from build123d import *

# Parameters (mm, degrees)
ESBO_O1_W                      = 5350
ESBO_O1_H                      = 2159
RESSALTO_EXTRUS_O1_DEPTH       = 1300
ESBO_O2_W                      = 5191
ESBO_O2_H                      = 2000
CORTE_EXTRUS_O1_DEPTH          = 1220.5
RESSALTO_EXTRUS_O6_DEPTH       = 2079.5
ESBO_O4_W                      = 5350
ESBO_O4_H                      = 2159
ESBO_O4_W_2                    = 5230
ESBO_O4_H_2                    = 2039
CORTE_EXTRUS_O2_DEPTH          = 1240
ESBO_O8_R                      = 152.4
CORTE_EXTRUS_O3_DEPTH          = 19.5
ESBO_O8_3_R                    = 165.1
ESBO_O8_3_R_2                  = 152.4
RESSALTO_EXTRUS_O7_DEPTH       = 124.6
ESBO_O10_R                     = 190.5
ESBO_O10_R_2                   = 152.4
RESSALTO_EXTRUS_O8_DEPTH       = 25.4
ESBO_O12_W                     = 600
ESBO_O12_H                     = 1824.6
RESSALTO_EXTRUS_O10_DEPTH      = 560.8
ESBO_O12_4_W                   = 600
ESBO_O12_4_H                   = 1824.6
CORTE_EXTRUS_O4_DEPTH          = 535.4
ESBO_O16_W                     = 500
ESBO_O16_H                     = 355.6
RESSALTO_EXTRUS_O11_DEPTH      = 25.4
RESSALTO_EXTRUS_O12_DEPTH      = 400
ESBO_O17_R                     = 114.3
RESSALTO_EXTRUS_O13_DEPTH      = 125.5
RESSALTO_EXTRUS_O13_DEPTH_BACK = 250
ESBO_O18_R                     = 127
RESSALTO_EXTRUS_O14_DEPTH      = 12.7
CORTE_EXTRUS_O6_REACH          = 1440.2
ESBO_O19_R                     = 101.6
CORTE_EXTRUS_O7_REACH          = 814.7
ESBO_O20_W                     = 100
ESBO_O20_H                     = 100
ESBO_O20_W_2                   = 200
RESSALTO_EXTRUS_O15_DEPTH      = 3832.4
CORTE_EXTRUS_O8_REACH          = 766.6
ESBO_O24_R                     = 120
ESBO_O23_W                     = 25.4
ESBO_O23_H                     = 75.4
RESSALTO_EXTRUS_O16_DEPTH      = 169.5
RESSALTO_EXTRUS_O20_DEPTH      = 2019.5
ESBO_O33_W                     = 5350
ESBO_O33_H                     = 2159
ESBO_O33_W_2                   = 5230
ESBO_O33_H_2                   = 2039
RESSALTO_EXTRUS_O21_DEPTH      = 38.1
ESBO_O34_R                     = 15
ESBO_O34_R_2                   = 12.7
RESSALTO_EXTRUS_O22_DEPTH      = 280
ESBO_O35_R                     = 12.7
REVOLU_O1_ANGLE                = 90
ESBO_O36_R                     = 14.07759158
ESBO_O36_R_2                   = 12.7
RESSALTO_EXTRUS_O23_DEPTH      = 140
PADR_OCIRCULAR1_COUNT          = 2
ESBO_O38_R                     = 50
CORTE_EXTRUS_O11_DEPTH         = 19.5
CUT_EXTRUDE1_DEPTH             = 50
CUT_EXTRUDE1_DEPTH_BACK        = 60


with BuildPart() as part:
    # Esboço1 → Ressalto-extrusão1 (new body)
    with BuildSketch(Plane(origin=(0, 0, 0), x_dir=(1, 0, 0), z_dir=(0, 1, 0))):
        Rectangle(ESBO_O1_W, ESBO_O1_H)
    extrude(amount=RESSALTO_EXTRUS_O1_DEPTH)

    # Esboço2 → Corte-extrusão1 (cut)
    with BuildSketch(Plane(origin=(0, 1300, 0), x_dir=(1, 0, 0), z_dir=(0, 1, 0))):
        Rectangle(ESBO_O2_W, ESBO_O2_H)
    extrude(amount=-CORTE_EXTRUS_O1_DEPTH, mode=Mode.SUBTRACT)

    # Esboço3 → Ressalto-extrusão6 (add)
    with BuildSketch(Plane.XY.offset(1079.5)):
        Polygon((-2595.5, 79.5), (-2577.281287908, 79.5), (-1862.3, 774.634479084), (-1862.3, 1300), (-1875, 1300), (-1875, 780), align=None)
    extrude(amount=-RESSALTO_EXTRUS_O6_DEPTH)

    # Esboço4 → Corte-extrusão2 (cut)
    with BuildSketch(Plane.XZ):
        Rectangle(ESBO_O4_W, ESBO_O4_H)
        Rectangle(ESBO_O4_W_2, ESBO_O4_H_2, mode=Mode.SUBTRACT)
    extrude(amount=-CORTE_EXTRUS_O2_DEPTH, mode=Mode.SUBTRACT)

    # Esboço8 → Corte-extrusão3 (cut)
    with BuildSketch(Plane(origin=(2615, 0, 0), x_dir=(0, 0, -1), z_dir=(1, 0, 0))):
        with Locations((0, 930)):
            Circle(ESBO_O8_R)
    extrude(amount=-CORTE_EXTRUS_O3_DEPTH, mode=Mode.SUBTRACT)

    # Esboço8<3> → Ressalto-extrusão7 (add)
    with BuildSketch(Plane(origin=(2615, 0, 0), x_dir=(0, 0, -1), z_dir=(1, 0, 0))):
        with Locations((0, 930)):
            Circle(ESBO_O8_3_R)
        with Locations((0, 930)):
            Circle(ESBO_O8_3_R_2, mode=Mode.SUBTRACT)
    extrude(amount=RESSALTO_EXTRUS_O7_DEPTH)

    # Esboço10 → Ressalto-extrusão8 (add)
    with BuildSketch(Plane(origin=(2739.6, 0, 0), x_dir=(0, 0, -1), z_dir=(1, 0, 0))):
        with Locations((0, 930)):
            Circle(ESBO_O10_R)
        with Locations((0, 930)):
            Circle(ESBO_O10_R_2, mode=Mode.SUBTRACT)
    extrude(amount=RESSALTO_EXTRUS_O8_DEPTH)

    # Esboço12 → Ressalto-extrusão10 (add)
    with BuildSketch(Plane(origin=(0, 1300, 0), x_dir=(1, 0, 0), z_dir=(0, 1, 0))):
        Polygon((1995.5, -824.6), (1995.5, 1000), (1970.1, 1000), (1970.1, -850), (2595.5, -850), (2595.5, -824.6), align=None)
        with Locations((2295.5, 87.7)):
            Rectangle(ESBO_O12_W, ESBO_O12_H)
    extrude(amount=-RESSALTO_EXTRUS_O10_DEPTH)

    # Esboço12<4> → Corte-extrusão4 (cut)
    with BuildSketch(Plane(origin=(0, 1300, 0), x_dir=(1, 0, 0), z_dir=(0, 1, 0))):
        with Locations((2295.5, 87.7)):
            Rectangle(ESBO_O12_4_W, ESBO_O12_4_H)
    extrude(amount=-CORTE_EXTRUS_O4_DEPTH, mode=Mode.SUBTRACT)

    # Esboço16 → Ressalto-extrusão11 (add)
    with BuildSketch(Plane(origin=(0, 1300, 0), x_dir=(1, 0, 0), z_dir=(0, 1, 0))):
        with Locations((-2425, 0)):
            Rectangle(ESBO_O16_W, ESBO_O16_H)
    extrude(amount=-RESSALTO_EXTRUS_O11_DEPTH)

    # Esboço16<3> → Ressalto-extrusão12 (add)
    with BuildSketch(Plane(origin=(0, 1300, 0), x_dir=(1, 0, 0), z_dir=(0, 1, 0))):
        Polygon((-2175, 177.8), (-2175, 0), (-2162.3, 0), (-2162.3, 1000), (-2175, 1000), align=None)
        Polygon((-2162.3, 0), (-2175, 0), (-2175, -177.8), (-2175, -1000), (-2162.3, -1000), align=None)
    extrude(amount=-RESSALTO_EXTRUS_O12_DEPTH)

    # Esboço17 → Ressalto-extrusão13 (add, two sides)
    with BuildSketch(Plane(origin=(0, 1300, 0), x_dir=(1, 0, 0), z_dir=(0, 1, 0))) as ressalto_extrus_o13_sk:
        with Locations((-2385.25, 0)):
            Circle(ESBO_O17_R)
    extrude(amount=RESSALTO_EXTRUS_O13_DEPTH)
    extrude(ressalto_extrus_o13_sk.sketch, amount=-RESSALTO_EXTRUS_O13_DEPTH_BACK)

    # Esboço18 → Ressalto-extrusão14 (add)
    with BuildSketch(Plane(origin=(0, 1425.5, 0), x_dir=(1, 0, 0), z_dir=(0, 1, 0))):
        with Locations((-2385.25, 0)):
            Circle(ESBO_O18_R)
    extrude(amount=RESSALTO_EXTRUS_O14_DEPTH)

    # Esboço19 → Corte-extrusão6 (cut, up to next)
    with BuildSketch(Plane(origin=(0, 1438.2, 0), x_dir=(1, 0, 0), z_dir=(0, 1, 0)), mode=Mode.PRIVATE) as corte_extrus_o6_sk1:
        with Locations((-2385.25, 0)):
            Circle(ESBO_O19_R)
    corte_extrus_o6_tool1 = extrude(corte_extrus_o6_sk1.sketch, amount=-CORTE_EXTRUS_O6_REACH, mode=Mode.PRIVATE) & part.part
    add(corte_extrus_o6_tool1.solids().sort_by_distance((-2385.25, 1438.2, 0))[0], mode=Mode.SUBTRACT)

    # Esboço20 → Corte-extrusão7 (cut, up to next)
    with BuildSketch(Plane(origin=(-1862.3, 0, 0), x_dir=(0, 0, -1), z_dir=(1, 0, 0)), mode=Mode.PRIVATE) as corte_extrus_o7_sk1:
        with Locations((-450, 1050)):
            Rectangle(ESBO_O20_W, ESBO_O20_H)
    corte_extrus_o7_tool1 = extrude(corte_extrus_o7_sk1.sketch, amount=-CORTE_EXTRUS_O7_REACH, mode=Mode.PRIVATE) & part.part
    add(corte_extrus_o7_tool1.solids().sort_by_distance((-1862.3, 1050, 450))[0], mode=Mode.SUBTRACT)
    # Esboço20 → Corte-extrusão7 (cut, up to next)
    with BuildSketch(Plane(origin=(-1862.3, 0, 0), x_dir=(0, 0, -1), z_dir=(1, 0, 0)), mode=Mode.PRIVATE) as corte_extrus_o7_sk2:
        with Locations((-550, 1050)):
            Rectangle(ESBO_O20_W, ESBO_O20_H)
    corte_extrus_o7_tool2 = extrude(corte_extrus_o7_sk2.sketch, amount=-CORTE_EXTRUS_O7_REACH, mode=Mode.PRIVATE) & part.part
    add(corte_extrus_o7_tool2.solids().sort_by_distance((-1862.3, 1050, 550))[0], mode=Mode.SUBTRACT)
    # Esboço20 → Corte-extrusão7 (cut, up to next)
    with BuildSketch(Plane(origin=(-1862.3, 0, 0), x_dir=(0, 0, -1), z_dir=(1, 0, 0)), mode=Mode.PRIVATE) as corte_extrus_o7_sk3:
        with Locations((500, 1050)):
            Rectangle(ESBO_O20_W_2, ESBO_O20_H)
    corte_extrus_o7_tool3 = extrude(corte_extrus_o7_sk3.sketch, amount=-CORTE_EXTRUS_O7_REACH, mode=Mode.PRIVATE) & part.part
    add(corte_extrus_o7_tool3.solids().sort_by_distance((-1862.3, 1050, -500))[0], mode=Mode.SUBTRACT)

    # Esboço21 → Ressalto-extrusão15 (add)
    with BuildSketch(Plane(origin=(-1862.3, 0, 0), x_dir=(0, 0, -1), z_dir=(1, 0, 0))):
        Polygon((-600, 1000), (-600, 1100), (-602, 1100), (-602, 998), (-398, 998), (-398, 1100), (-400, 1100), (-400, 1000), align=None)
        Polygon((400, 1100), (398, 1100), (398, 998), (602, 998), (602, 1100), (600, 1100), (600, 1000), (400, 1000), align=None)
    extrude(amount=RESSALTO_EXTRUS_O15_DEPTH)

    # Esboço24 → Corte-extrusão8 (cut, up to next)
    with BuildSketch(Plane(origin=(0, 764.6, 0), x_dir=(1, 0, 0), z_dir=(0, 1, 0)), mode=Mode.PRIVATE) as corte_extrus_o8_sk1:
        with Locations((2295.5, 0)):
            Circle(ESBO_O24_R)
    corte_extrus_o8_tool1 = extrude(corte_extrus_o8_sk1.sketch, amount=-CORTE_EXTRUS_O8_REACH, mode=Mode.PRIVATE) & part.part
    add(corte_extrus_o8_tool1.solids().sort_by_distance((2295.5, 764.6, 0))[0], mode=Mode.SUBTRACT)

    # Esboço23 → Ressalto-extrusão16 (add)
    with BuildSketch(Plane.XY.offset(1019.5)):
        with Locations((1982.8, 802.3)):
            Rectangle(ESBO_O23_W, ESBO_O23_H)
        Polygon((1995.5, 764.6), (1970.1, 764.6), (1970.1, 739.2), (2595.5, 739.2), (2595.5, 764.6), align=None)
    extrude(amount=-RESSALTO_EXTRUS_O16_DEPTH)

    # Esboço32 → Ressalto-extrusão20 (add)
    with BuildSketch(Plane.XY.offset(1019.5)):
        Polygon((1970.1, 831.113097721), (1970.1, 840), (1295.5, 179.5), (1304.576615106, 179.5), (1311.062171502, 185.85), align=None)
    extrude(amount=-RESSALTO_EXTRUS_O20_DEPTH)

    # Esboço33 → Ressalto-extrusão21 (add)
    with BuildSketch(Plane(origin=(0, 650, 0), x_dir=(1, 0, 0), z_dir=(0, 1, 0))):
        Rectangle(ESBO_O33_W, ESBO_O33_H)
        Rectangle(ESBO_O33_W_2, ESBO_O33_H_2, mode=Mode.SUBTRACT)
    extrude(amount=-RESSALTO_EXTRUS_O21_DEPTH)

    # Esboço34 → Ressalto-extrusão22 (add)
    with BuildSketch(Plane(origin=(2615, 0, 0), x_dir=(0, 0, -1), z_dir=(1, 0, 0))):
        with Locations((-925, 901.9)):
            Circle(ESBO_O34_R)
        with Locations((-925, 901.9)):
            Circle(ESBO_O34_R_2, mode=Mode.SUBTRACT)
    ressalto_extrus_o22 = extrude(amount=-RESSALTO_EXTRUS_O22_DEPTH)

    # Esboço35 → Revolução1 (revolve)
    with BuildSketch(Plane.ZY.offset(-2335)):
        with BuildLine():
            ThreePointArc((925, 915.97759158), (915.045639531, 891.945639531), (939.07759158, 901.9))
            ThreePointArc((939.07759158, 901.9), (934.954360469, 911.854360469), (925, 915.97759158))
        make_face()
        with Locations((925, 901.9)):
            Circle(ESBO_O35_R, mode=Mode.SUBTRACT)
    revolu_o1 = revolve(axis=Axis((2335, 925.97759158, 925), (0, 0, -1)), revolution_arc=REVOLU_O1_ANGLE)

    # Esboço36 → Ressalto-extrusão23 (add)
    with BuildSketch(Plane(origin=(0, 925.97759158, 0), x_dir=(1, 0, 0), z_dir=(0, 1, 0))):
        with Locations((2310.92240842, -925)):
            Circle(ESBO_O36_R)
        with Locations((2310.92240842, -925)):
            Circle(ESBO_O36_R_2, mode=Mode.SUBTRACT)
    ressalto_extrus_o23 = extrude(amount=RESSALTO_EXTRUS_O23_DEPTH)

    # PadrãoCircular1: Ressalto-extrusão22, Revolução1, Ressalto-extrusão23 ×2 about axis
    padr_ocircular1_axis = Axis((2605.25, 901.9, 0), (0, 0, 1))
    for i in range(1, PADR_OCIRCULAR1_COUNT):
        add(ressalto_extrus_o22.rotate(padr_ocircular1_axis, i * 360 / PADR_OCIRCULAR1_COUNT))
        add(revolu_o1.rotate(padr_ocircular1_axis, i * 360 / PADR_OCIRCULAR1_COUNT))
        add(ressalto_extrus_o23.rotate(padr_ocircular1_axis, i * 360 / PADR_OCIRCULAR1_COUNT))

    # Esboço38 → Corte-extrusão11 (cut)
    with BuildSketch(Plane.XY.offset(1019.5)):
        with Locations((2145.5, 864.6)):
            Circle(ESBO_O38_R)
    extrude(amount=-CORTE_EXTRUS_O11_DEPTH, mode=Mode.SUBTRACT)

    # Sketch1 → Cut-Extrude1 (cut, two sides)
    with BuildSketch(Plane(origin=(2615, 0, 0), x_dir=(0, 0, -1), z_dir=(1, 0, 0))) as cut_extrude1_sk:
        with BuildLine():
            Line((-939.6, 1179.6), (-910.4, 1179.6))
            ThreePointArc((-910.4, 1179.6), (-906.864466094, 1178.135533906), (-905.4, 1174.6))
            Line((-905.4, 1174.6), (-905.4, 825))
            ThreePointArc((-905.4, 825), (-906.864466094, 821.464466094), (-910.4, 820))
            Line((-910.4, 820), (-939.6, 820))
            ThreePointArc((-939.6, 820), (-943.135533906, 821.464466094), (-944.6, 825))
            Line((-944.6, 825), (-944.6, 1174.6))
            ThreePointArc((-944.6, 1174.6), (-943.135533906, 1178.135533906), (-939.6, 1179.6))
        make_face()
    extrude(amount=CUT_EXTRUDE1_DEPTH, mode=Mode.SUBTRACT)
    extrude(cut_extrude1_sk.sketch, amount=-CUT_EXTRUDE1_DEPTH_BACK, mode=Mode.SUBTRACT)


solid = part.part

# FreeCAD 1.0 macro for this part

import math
import FreeCAD as App
import Part
import Sketcher

V = App.Vector

doc = App.newDocument("Part")
body = doc.addObject("PartDesign::Body", "Body")
body.AllowCompound = True

sketch1 = body.newObject("Sketcher::SketchObject", "Sketch")
sketch1.AttachmentSupport = (doc.getObject("XZ_Plane"), [""])
sketch1.MapMode = "FlatFace"
sketch1.addGeometry([
    Part.LineSegment(V(-2675, -1079.5, 0), V(-2675, 1079.5, 0)),
    Part.LineSegment(V(-2675, 1079.5, 0), V(2675, 1079.5, 0)),
    Part.LineSegment(V(2675, 1079.5, 0), V(2675, -1079.5, 0)),
    Part.LineSegment(V(2675, -1079.5, 0), V(-2675, -1079.5, 0)),
], False)
sketch1.addConstraint([
    Sketcher.Constraint("Coincident", 0, 2, 1, 1),
    Sketcher.Constraint("Coincident", 1, 2, 2, 1),
    Sketcher.Constraint("Coincident", 2, 2, 3, 1),
    Sketcher.Constraint("Coincident", 3, 2, 0, 1),
    Sketcher.Constraint("Vertical", 0),
    Sketcher.Constraint("Horizontal", 1),
    Sketcher.Constraint("Vertical", 2),
    Sketcher.Constraint("Horizontal", 3),
    Sketcher.Constraint("Symmetric", 0, 2, 2, 2, -1, 1),
    Sketcher.Constraint("DistanceX", 1, 1, 1, 2, 5350.0),
    Sketcher.Constraint("DistanceY", 0, 1, 0, 2, 2159.0),
])
pad1 = body.newObject("PartDesign::Pad", "Pad")
pad1.Profile = sketch1
pad1.Length = 1300
pad1.Reversed = True

sketch2 = body.newObject("Sketcher::SketchObject", "Sketch001")
sketch2.AttachmentSupport = (doc.getObject("XZ_Plane"), [""])
sketch2.MapMode = "FlatFace"
sketch2.AttachmentOffset = App.Placement(V(0, 0, -1300), App.Rotation())
sketch2.addGeometry([
    Part.LineSegment(V(-2595.5, -1000, 0), V(-2595.5, 1000, 0)),
    Part.LineSegment(V(-2595.5, 1000, 0), V(2595.5, 1000, 0)),
    Part.LineSegment(V(2595.5, 1000, 0), V(2595.5, -1000, 0)),
    Part.LineSegment(V(2595.5, -1000, 0), V(-2595.5, -1000, 0)),
], False)
sketch2.addConstraint([
    Sketcher.Constraint("Coincident", 0, 2, 1, 1),
    Sketcher.Constraint("Coincident", 1, 2, 2, 1),
    Sketcher.Constraint("Coincident", 2, 2, 3, 1),
    Sketcher.Constraint("Coincident", 3, 2, 0, 1),
    Sketcher.Constraint("Vertical", 0),
    Sketcher.Constraint("Horizontal", 1),
    Sketcher.Constraint("Vertical", 2),
    Sketcher.Constraint("Horizontal", 3),
    Sketcher.Constraint("Symmetric", 0, 2, 2, 2, -1, 1),
    Sketcher.Constraint("DistanceX", 1, 1, 1, 2, 5191.0),
    Sketcher.Constraint("DistanceY", 0, 1, 0, 2, 2000.0),
])
pocket1 = body.newObject("PartDesign::Pocket", "Pocket")
pocket1.Profile = sketch2
pocket1.Length = 1220.5
pocket1.Reversed = True

sketch3 = body.newObject("Sketcher::SketchObject", "Sketch002")
sketch3.AttachmentSupport = (doc.getObject("XY_Plane"), [""])
sketch3.MapMode = "FlatFace"
sketch3.AttachmentOffset = App.Placement(V(0, 0, 1079.5), App.Rotation())
sketch3.addGeometry([
    Part.LineSegment(V(-2595.5, 79.5, 0), V(-2577.281288, 79.5, 0)),
    Part.LineSegment(V(-2577.281288, 79.5, 0), V(-1862.3, 774.634479, 0)),
    Part.LineSegment(V(-1862.3, 774.634479, 0), V(-1862.3, 1300, 0)),
    Part.LineSegment(V(-1862.3, 1300, 0), V(-1875, 1300, 0)),
    Part.LineSegment(V(-1875, 1300, 0), V(-1875, 780, 0)),
    Part.LineSegment(V(-1875, 780, 0), V(-2595.5, 79.5, 0)),
], False)
sketch3.addConstraint([
    Sketcher.Constraint("Coincident", 0, 2, 1, 1),
    Sketcher.Constraint("Coincident", 1, 2, 2, 1),
    Sketcher.Constraint("Coincident", 2, 2, 3, 1),
    Sketcher.Constraint("Coincident", 3, 2, 4, 1),
    Sketcher.Constraint("Coincident", 4, 2, 5, 1),
    Sketcher.Constraint("Coincident", 5, 2, 0, 1),
    Sketcher.Constraint("Horizontal", 0),
    Sketcher.Constraint("Vertical", 2),
    Sketcher.Constraint("Horizontal", 3),
    Sketcher.Constraint("Vertical", 4),
    Sketcher.Constraint("Parallel", 1, 5),
    Sketcher.Constraint("DistanceY", 4, 2, 4, 1, 520.0),
    Sketcher.Constraint("DistanceX", 3, 2, 3, 1, 12.7),
    Sketcher.Constraint("DistanceY", -1, 1, 2, 2, 1300.0),
    Sketcher.Constraint("DistanceX", 3, 2, -1, 1, 1875.0),
    Sketcher.Constraint("DistanceY", -1, 1, 0, 2, 79.5),
    Sketcher.Constraint("DistanceX", 5, 2, -1, 1, 2595.5),
    Sketcher.Constraint("DistanceY", 2, 1, 2, 2, 525.365521),
])
pad2 = body.newObject("PartDesign::Pad", "Pad001")
pad2.Profile = sketch3
pad2.Length = 2079.5
pad2.Reversed = True

sketch4 = body.newObject("Sketcher::SketchObject", "Sketch003")
sketch4.AttachmentSupport = (doc.getObject("XZ_Plane"), [""])
sketch4.MapMode = "FlatFace"
sketch4.addGeometry([
    Part.LineSegment(V(-2675, 1079.5, 0), V(-2675, -1079.5, 0)),
    Part.LineSegment(V(-2675, -1079.5, 0), V(2675, -1079.5, 0)),
    Part.LineSegment(V(2675, -1079.5, 0), V(2675, 1079.5, 0)),
    Part.LineSegment(V(2675, 1079.5, 0), V(-2675, 1079.5, 0)),
    Part.LineSegment(V(2615, -1019.5, 0), V(-2615, -1019.5, 0)),
    Part.LineSegment(V(-2615, -1019.5, 0), V(-2615, 1019.5, 0)),
    Part.LineSegment(V(-2615, 1019.5, 0), V(2615, 1019.5, 0)),
    Part.LineSegment(V(2615, 1019.5, 0), V(2615, -1019.5, 0)),
], False)
sketch4.addConstraint([
    Sketcher.Constraint("Coincident", 0, 2, 1, 1),
    Sketcher.Constraint("Coincident", 1, 2, 2, 1),
    Sketcher.Constraint("Coincident", 2, 2, 3, 1),
    Sketcher.Constraint("Coincident", 3, 2, 0, 1),
    Sketcher.Constraint("Coincident", 4, 2, 5, 1),
    Sketcher.Constraint("Coincident", 5, 2, 6, 1),
    Sketcher.Constraint("Coincident", 6, 2, 7, 1),
    Sketcher.Constraint("Coincident", 7, 2, 4, 1),
    Sketcher.Constraint("Vertical", 0),
    Sketcher.Constraint("Horizontal", 1),
    Sketcher.Constraint("Vertical", 2),
    Sketcher.Constraint("Horizontal", 3),
    Sketcher.Constraint("Horizontal", 4),
    Sketcher.Constraint("Vertical", 5),
    Sketcher.Constraint("Horizontal", 6),
    Sketcher.Constraint("Vertical", 7),
    Sketcher.Constraint("Symmetric", 0, 2, 2, 2, -1, 1),
    Sketcher.Constraint("Symmetric", 4, 2, 6, 2, -1, 1),
    Sketcher.Constraint("DistanceX", 1, 1, 1, 2, 5350.0),
    Sketcher.Constraint("DistanceX", 4, 2, 4, 1, 5230.0),
    Sketcher.Constraint("DistanceY", 0, 2, 0, 1, 2159.0),
    Sketcher.Constraint("DistanceY", 5, 1, 5, 2, 2039.0),
])
pocket2 = body.newObject("PartDesign::Pocket", "Pocket001")
pocket2.Profile = sketch4
pocket2.Length = 1240

sketch5 = body.newObject("Sketcher::SketchObject", "Sketch004")
sketch5.AttachmentSupport = (doc.getObject("YZ_Plane"), [""])
sketch5.MapMode = "FlatFace"
sketch5.AttachmentOffset = App.Placement(V(0, 0, 2615), App.Rotation())
sketch5.addGeometry(Part.Circle(V(930, 0, 0), V(0, 0, 1), 152.4), False)
sketch5.addConstraint([
    Sketcher.Constraint("PointOnObject", 0, 3, -1),
    Sketcher.Constraint("Diameter", 0, 304.8),
    Sketcher.Constraint("DistanceX", -1, 1, 0, 3, 930.0),
])
pocket3 = body.newObject("PartDesign::Pocket", "Pocket002")
pocket3.Profile = sketch5
pocket3.Length = 19.5

sketch6 = body.newObject("Sketcher::SketchObject", "Sketch005")
sketch6.AttachmentSupport = (doc.getObject("YZ_Plane"), [""])
sketch6.MapMode = "FlatFace"
sketch6.AttachmentOffset = App.Placement(V(0, 0, 2615), App.Rotation())
sketch6.addGeometry([
    Part.Circle(V(930, 0, 0), V(0, 0, 1), 165.1),
    Part.Circle(V(930, 0, 0), V(0, 0, 1), 152.4),
], False)
sketch6.addConstraint([
    Sketcher.Constraint("Coincident", 1, 3, 0, 3),
    Sketcher.Constraint("PointOnObject", 0, 3, -1),
    Sketcher.Constraint("Diameter", 0, 330.2),
    Sketcher.Constraint("Diameter", 1, 304.8),
    Sketcher.Constraint("DistanceX", -1, 1, 0, 3, 930.0),
])
pad3 = body.newObject("PartDesign::Pad", "Pad002")
pad3.Profile = sketch6
pad3.Length = 124.6

sketch7 = body.newObject("Sketcher::SketchObject", "Sketch006")
sketch7.AttachmentSupport = (doc.getObject("YZ_Plane"), [""])
sketch7.MapMode = "FlatFace"
sketch7.AttachmentOffset = App.Placement(V(0, 0, 2739.6), App.Rotation())
sketch7.addGeometry([
    Part.Circle(V(930, 0, 0), V(0, 0, 1), 190.5),
    Part.Circle(V(930, 0, 0), V(0, 0, 1), 152.4),
], False)
sketch7.addConstraint([
    Sketcher.Constraint("Coincident", 1, 3, 0, 3),
    Sketcher.Constraint("PointOnObject", 0, 3, -1),
    Sketcher.Constraint("Diameter", 0, 381.0),
    Sketcher.Constraint("Diameter", 1, 304.8),
    Sketcher.Constraint("DistanceX", -1, 1, 0, 3, 930.0),
])
pad4 = body.newObject("PartDesign::Pad", "Pad003")
pad4.Profile = sketch7
pad4.Length = 25.4

sketch8 = body.newObject("Sketcher::SketchObject", "Sketch007")
sketch8.AttachmentSupport = (doc.getObject("XZ_Plane"), [""])
sketch8.MapMode = "FlatFace"
sketch8.AttachmentOffset = App.Placement(V(0, 0, -1300), App.Rotation())
sketch8.addGeometry([
    Part.LineSegment(V(1970.1, -1000, 0), V(1970.1, 850, 0)),
    Part.LineSegment(V(1970.1, 850, 0), V(2595.5, 850, 0)),
    Part.LineSegment(V(2595.5, 850, 0), V(2595.5, -1000, 0)),
    Part.LineSegment(V(2595.5, -1000, 0), V(1970.1, -1000, 0)),
], False)
sketch8.addConstraint([
    Sketcher.Constraint("Coincident", 0, 2, 1, 1),
    Sketcher.Constraint("Coincident", 1, 2, 2, 1),
    Sketcher.Constraint("Coincident", 2, 2, 3, 1),
    Sketcher.Constraint("Coincident", 3, 2, 0, 1),
    Sketcher.Constraint("Vertical", 0),
    Sketcher.Constraint("Horizontal", 1),
    Sketcher.Constraint("Vertical", 2),
    Sketcher.Constraint("Horizontal", 3),
    Sketcher.Constraint("DistanceY", 0, 1, 0, 2, 1850.0),
    Sketcher.Constraint("DistanceX", 1, 1, 1, 2, 625.4),
    Sketcher.Constraint("DistanceY", -1, 1, 0, 2, 850.0),
    Sketcher.Constraint("DistanceX", -1, 1, 0, 2, 1970.1),
])
pad5 = body.newObject("PartDesign::Pad", "Pad004")
pad5.Profile = sketch8
pad5.Length = 560.8

sketch9 = body.newObject("Sketcher::SketchObject", "Sketch008")
sketch9.AttachmentSupport = (doc.getObject("XZ_Plane"), [""])
sketch9.MapMode = "FlatFace"
sketch9.AttachmentOffset = App.Placement(V(0, 0, -1300), App.Rotation())
sketch9.addGeometry([
    Part.LineSegment(V(1995.5, -1000, 0), V(1995.5, 824.6, 0)),
    Part.LineSegment(V(1995.5, 824.6, 0), V(2595.5, 824.6, 0)),
    Part.LineSegment(V(2595.5, 824.6, 0), V(2595.5, -1000, 0)),
    Part.LineSegment(V(2595.5, -1000, 0), V(1995.5, -1000, 0)),
], False)
sketch9.addConstraint([
    Sketcher.Constraint("Coincident", 0, 2, 1, 1),
    Sketcher.Constraint("Coincident", 1, 2, 2, 1),
    Sketcher.Constraint("Coincident", 2, 2, 3, 1),
    Sketcher.Constraint("Coincident", 3, 2, 0, 1),
    Sketcher.Constraint("Vertical", 0),
    Sketcher.Constraint("Horizontal", 1),
    Sketcher.Constraint("Vertical", 2),
    Sketcher.Constraint("Horizontal", 3),
    Sketcher.Constraint("DistanceX", 1, 1, 1, 2, 600.0),
    Sketcher.Constraint("DistanceY", 0, 1, 0, 2, 1824.6),
    Sketcher.Constraint("DistanceY", 2, 2, -1, 1, 1000.0),
    Sketcher.Constraint("DistanceX", -1, 1, 0, 2, 1995.5),
])
pocket4 = body.newObject("PartDesign::Pocket", "Pocket003")
pocket4.Profile = sketch9
pocket4.Length = 535.4
pocket4.Reversed = True

sketch10 = body.newObject("Sketcher::SketchObject", "Sketch009")
sketch10.AttachmentSupport = (doc.getObject("XZ_Plane"), [""])
sketch10.MapMode = "FlatFace"
sketch10.AttachmentOffset = App.Placement(V(0, 0, -1300), App.Rotation())
sketch10.addGeometry([
    Part.LineSegment(V(-2675, -177.8, 0), V(-2675, 177.8, 0)),
    Part.LineSegment(V(-2675, 177.8, 0), V(-2175, 177.8, 0)),
    Part.LineSegment(V(-2175, 177.8, 0), V(-2175, -177.8, 0)),
    Part.LineSegment(V(-2175, -177.8, 0), V(-2675, -177.8, 0)),
], False)
sketch10.addConstraint([
    Sketcher.Constraint("Coincident", 0, 2, 1, 1),
    Sketcher.Constraint("Coincident", 1, 2, 2, 1),
    Sketcher.Constraint("Coincident", 2, 2, 3, 1),
    Sketcher.Constraint("Coincident", 3, 2, 0, 1),
    Sketcher.Constraint("Vertical", 0),
    Sketcher.Constraint("Horizontal", 1),
    Sketcher.Constraint("Vertical", 2),
    Sketcher.Constraint("Horizontal", 3),
    Sketcher.Constraint("DistanceX", 1, 1, 1, 2, 500.0),
    Sketcher.Constraint("DistanceY", 0, 1, 0, 2, 355.6),
    Sketcher.Constraint("DistanceX", 0, 2, -1, 1, 2675.0),
    Sketcher.Constraint("DistanceY", -1, 1, 0, 2, 177.8),
])
pad6 = body.newObject("PartDesign::Pad", "Pad005")
pad6.Profile = sketch10
pad6.Length = 25.4

sketch11 = body.newObject("Sketcher::SketchObject", "Sketch010")
sketch11.AttachmentSupport = (doc.getObject("XZ_Plane"), [""])
sketch11.MapMode = "FlatFace"
sketch11.AttachmentOffset = App.Placement(V(0, 0, -1300), App.Rotation())
sketch11.addGeometry([
    Part.LineSegment(V(-2162.3, -1000, 0), V(-2175, -1000, 0)),
    Part.LineSegment(V(-2175, -1000, 0), V(-2175, 1000, 0)),
    Part.LineSegment(V(-2175, 1000, 0), V(-2162.3, 1000, 0)),
    Part.LineSegment(V(-2162.3, 1000, 0), V(-2162.3, -1000, 0)),
], False)
sketch11.addConstraint([
    Sketcher.Constraint("Coincident", 0, 2, 1, 1),
    Sketcher.Constraint("Coincident", 1, 2, 2, 1),
    Sketcher.Constraint("Coincident", 2, 2, 3, 1),
    Sketcher.Constraint("Coincident", 3, 2, 0, 1),
    Sketcher.Constraint("Horizontal", 0),
    Sketcher.Constraint("Vertical", 1),
    Sketcher.Constraint("Horizontal", 2),
    Sketcher.Constraint("Vertical", 3),
    Sketcher.Constraint("DistanceY", 1, 1, 1, 2, 2000.0),
    Sketcher.Constraint("DistanceX", 0, 2, 0, 1, 12.7),
    Sketcher.Constraint("DistanceX", 0, 2, -1, 1, 2175.0),
    Sketcher.Constraint("DistanceY", 0, 2, -1, 1, 1000.0),
])
pad7 = body.newObject("PartDesign::Pad", "Pad006")
pad7.Profile = sketch11
pad7.Length = 400

sketch12 = body.newObject("Sketcher::SketchObject", "Sketch011")
sketch12.AttachmentSupport = (doc.getObject("XZ_Plane"), [""])
sketch12.MapMode = "FlatFace"
sketch12.AttachmentOffset = App.Placement(V(0, 0, -1300), App.Rotation())
sketch12.addGeometry(Part.Circle(V(-2385.25, 0, 0), V(0, 0, 1), 114.3), False)
sketch12.addConstraint([
    Sketcher.Constraint("PointOnObject", 0, 3, -1),
    Sketcher.Constraint("Diameter", 0, 228.6),
    Sketcher.Constraint("DistanceX", 0, 3, -1, 1, 2385.25),
])
pad8 = body.newObject("PartDesign::Pad", "Pad007")
pad8.Profile = sketch12
pad8.Type = "TwoLengths"
pad8.Length = 125.5
pad8.Length2 = 250
pad8.Reversed = True

sketch13 = body.newObject("Sketcher::SketchObject", "Sketch012")
sketch13.AttachmentSupport = (doc.getObject("XZ_Plane"), [""])
sketch13.MapMode = "FlatFace"
sketch13.AttachmentOffset = App.Placement(V(0, 0, -1425.5), App.Rotation())
sketch13.addGeometry(Part.Circle(V(-2385.25, 0, 0), V(0, 0, 1), 127), False)
sketch13.addConstraint([
    Sketcher.Constraint("PointOnObject", 0, 3, -1),
    Sketcher.Constraint("Diameter", 0, 254.0),
    Sketcher.Constraint("DistanceX", 0, 3, -1, 1, 2385.25),
])
pad9 = body.newObject("PartDesign::Pad", "Pad008")
pad9.Profile = sketch13
pad9.Length = 12.7
pad9.Reversed = True

sketch14 = body.newObject("Sketcher::SketchObject", "Sketch013")
sketch14.AttachmentSupport = (doc.getObject("XZ_Plane"), [""])
sketch14.MapMode = "FlatFace"
sketch14.AttachmentOffset = App.Placement(V(0, 0, -1438.2), App.Rotation())
sketch14.addGeometry(Part.Circle(V(-2385.25, 0, 0), V(0, 0, 1), 101.6), False)
sketch14.addConstraint([
    Sketcher.Constraint("PointOnObject", 0, 3, -1),
    Sketcher.Constraint("Diameter", 0, 203.2),
    Sketcher.Constraint("DistanceX", 0, 3, -1, 1, 2385.25),
])
pocket5 = body.newObject("PartDesign::Pocket", "Pocket004")
pocket5.Profile = sketch14
pocket5.Type = "UpToFirst"
pocket5.Reversed = True

sketch15 = body.newObject("Sketcher::SketchObject", "Sketch014")
sketch15.AttachmentSupport = (doc.getObject("YZ_Plane"), [""])
sketch15.MapMode = "FlatFace"
sketch15.AttachmentOffset = App.Placement(V(0, 0, -1862.3), App.Rotation())
sketch15.addGeometry([
    Part.LineSegment(V(1100, 500, 0), V(1000, 500, 0)),
    Part.LineSegment(V(1000, 500, 0), V(1000, 400, 0)),
    Part.LineSegment(V(1000, 400, 0), V(1100, 400, 0)),
    Part.LineSegment(V(1100, 400, 0), V(1100, 500, 0)),
], False)
sketch15.addConstraint([
    Sketcher.Constraint("Coincident", 0, 2, 1, 1),
    Sketcher.Constraint("Coincident", 1, 2, 2, 1),
    Sketcher.Constraint("Coincident", 2, 2, 3, 1),
    Sketcher.Constraint("Coincident", 3, 2, 0, 1),
    Sketcher.Constraint("Horizontal", 0),
    Sketcher.Constraint("Vertical", 1),
    Sketcher.Constraint("Horizontal", 2),
    Sketcher.Constraint("Vertical", 3),
    Sketcher.Constraint("Equal", 2, 1),
    Sketcher.Constraint("DistanceX", 0, 2, 0, 1, 100.0),
    Sketcher.Constraint("DistanceX", -1, 1, 0, 2, 1000.0),
    Sketcher.Constraint("DistanceY", -1, 1, 0, 2, 500.0),
])
pocket6 = body.newObject("PartDesign::Pocket", "Pocket005")
pocket6.Profile = sketch15
pocket6.Type = "UpToFirst"

sketch16 = body.newObject("Sketcher::SketchObject", "Sketch015")
sketch16.AttachmentSupport = (doc.getObject("YZ_Plane"), [""])
sketch16.MapMode = "FlatFace"
sketch16.AttachmentOffset = App.Placement(V(0, 0, -1862.3), App.Rotation())
sketch16.addGeometry([
    Part.LineSegment(V(1100, 600, 0), V(1000, 600, 0)),
    Part.LineSegment(V(1000, 600, 0), V(1000, 500, 0)),
    Part.LineSegment(V(1000, 500, 0), V(1100, 500, 0)),
    Part.LineSegment(V(1100, 500, 0), V(1100, 600, 0)),
], False)
sketch16.addConstraint([
    Sketcher.Constraint("Coincident", 0, 2, 1, 1),
    Sketcher.Constraint("Coincident", 1, 2, 2, 1),
    Sketcher.Constraint("Coincident", 2, 2, 3, 1),
    Sketcher.Constraint("Coincident", 3, 2, 0, 1),
    Sketcher.Constraint("Horizontal", 0),
    Sketcher.Constraint("Vertical", 1),
    Sketcher.Constraint("Horizontal", 2),
    Sketcher.Constraint("Vertical", 3),
    Sketcher.Constraint("Equal", 2, 1),
    Sketcher.Constraint("DistanceX", 0, 2, 0, 1, 100.0),
    Sketcher.Constraint("DistanceX", -1, 1, 0, 2, 1000.0),
    Sketcher.Constraint("DistanceY", -1, 1, 0, 2, 600.0),
])
pocket7 = body.newObject("PartDesign::Pocket", "Pocket006")
pocket7.Profile = sketch16
pocket7.Type = "UpToFirst"

sketch17 = body.newObject("Sketcher::SketchObject", "Sketch016")
sketch17.AttachmentSupport = (doc.getObject("YZ_Plane"), [""])
sketch17.MapMode = "FlatFace"
sketch17.AttachmentOffset = App.Placement(V(0, 0, -1862.3), App.Rotation())
sketch17.addGeometry([
    Part.LineSegment(V(1100, -400, 0), V(1000, -400, 0)),
    Part.LineSegment(V(1000, -400, 0), V(1000, -600, 0)),
    Part.LineSegment(V(1000, -600, 0), V(1100, -600, 0)),
    Part.LineSegment(V(1100, -600, 0), V(1100, -400, 0)),
], False)
sketch17.addConstraint([
    Sketcher.Constraint("Coincident", 0, 2, 1, 1),
    Sketcher.Constraint("Coincident", 1, 2, 2, 1),
    Sketcher.Constraint("Coincident", 2, 2, 3, 1),
    Sketcher.Constraint("Coincident", 3, 2, 0, 1),
    Sketcher.Constraint("Horizontal", 0),
    Sketcher.Constraint("Vertical", 1),
    Sketcher.Constraint("Horizontal", 2),
    Sketcher.Constraint("Vertical", 3),
    Sketcher.Constraint("DistanceX", 0, 2, 0, 1, 100.0),
    Sketcher.Constraint("DistanceY", 1, 2, 1, 1, 200.0),
    Sketcher.Constraint("DistanceX", -1, 1, 0, 2, 1000.0),
    Sketcher.Constraint("DistanceY", 0, 2, -1, 1, 400.0),
])
pocket8 = body.newObject("PartDesign::Pocket", "Pocket007")
pocket8.Profile = sketch17
pocket8.Type = "UpToFirst"

sketch18 = body.newObject("Sketcher::SketchObject", "Sketch017")
sketch18.AttachmentSupport = (doc.getObject("YZ_Plane"), [""])
sketch18.MapMode = "FlatFace"
sketch18.AttachmentOffset = App.Placement(V(0, 0, -1862.3), App.Rotation())
sketch18.addGeometry([
    Part.LineSegment(V(1000, 600, 0), V(1100, 600, 0)),
    Part.LineSegment(V(1100, 600, 0), V(1100, 602, 0)),
    Part.LineSegment(V(1100, 602, 0), V(998, 602, 0)),
    Part.LineSegment(V(998, 602, 0), V(998, 398, 0)),
    Part.LineSegment(V(998, 398, 0), V(1100, 398, 0)),
    Part.LineSegment(V(1100, 398, 0), V(1100, 400, 0)),
    Part.LineSegment(V(1100, 400, 0), V(1000, 400, 0)),
    Part.LineSegment(V(1000, 400, 0), V(1000, 600, 0)),
    Part.LineSegment(V(1100, -400, 0), V(1100, -398, 0)),
    Part.LineSegment(V(1100, -398, 0), V(998, -398, 0)),
    Part.LineSegment(V(998, -398, 0), V(998, -602, 0)),
    Part.LineSegment(V(998, -602, 0), V(1100, -602, 0)),
    Part.LineSegment(V(1100, -602, 0), V(1100, -600, 0)),
    Part.LineSegment(V(1100, -600, 0), V(1000, -600, 0)),
    Part.LineSegment(V(1000, -600, 0), V(1000, -400, 0)),
    Part.LineSegment(V(1000, -400, 0), V(1100, -400, 0)),
], False)
sketch18.addConstraint([
    Sketcher.Constraint("Coincident", 0, 2, 1, 1),
    Sketcher.Constraint("Coincident", 1, 2, 2, 1),
    Sketcher.Constraint("Coincident", 2, 2, 3, 1),
    Sketcher.Constraint("Coincident", 3, 2, 4, 1),
    Sketcher.Constraint("Coincident", 4, 2, 5, 1),
    Sketcher.Constraint("Coincident", 5, 2, 6, 1),
    Sketcher.Constraint("Coincident", 6, 2, 7, 1),
    Sketcher.Constraint("Coincident", 7, 2, 0, 1),
    Sketcher.Constraint("Coincident", 8, 2, 9, 1),
    Sketcher.Constraint("Coincident", 9, 2, 10, 1),
    Sketcher.Constraint("Coincident", 10, 2, 11, 1),
    Sketcher.Constraint("Coincident", 11, 2, 12, 1),
    Sketcher.Constraint("Coincident", 12, 2, 13, 1),
    Sketcher.Constraint("Coincident", 13, 2, 14, 1),
    Sketcher.Constraint("Coincident", 14, 2, 15, 1),
    Sketcher.Constraint("Coincident", 15, 2, 8, 1),
    Sketcher.Constraint("Horizontal", 0),
    Sketcher.Constraint("Vertical", 1),
    Sketcher.Constraint("Horizontal", 2),
    Sketcher.Constraint("Vertical", 3),
    Sketcher.Constraint("Horizontal", 4),
    Sketcher.Constraint("Vertical", 5),
    Sketcher.Constraint("Horizontal", 6),
    Sketcher.Constraint("Vertical", 7),
    Sketcher.Constraint("Vertical", 8),
    Sketcher.Constraint("Horizontal", 9),
    Sketcher.Constraint("Vertical", 10),
    Sketcher.Constraint("Horizontal", 11),
    Sketcher.Constraint("Vertical", 12),
    Sketcher.Constraint("Horizontal", 13),
    Sketcher.Constraint("Vertical", 14),
    Sketcher.Constraint("Horizontal", 15),
    Sketcher.Constraint("Symmetric", 4, 2, 8, 2, -1),
    Sketcher.Constraint("Symmetric", 2, 2, 10, 2, -1),
    Sketcher.Constraint("Symmetric", 0, 2, 12, 2, -1),
    Sketcher.Constraint("Symmetric", 6, 2, 14, 2, -1),
    Sketcher.Constraint("Vertical", 1, 2, 4, 2),
    Sketcher.Constraint("Equal", 1, 5),
    Sketcher.Constraint("DistanceX", 0, 1, 0, 2, 100.0),
    Sketcher.Constraint("DistanceX", 2, 2, 2, 1, 102.0),
    Sketcher.Constraint("DistanceY", 1, 1, 1, 2, 2.0),
    Sketcher.Constraint("DistanceY", 3, 2, 3, 1, 204.0),
    Sketcher.Constraint("DistanceX", -1, 1, 0, 2, 1100.0),
    Sketcher.Constraint("DistanceY", -1, 1, 0, 2, 600.0),
])
pad10 = body.newObject("PartDesign::Pad", "Pad009")
pad10.Profile = sketch18
pad10.Length = 3832.4

sketch19 = body.newObject("Sketcher::SketchObject", "Sketch018")
sketch19.AttachmentSupport = (doc.getObject("XZ_Plane"), [""])
sketch19.MapMode = "FlatFace"
sketch19.AttachmentOffset = App.Placement(V(0, 0, -764.6), App.Rotation())
sketch19.addGeometry(Part.Circle(V(2295.5, 0, 0), V(0, 0, 1), 120), False)
sketch19.addConstraint([
    Sketcher.Constraint("PointOnObject", 0, 3, -1),
    Sketcher.Constraint("Diameter", 0, 240.0),
    Sketcher.Constraint("DistanceX", -1, 1, 0, 3, 2295.5),
])
pocket9 = body.newObject("PartDesign::Pocket", "Pocket008")
pocket9.Profile = sketch19
pocket9.Type = "UpToFirst"
pocket9.Reversed = True

sketch20 = body.newObject("Sketcher::SketchObject", "Sketch019")
sketch20.AttachmentSupport = (doc.getObject("XY_Plane"), [""])
sketch20.MapMode = "FlatFace"
sketch20.AttachmentOffset = App.Placement(V(0, 0, 1019.5), App.Rotation())
sketch20.addGeometry([
    Part.LineSegment(V(1970.1, 840, 0), V(1970.1, 739.2, 0)),
    Part.LineSegment(V(1970.1, 739.2, 0), V(2595.5, 739.2, 0)),
    Part.LineSegment(V(2595.5, 739.2, 0), V(2595.5, 764.6, 0)),
    Part.LineSegment(V(2595.5, 764.6, 0), V(1995.5, 764.6, 0)),
    Part.LineSegment(V(1995.5, 764.6, 0), V(1995.5, 840, 0)),
    Part.LineSegment(V(1995.5, 840, 0), V(1970.1, 840, 0)),
], False)
sketch20.addConstraint([
    Sketcher.Constraint("Coincident", 0, 2, 1, 1),
    Sketcher.Constraint("Coincident", 1, 2, 2, 1),
    Sketcher.Constraint("Coincident", 2, 2, 3, 1),
    Sketcher.Constraint("Coincident", 3, 2, 4, 1),
    Sketcher.Constraint("Coincident", 4, 2, 5, 1),
    Sketcher.Constraint("Coincident", 5, 2, 0, 1),
    Sketcher.Constraint("Vertical", 0),
    Sketcher.Constraint("Horizontal", 1),
    Sketcher.Constraint("Vertical", 2),
    Sketcher.Constraint("Horizontal", 3),
    Sketcher.Constraint("Vertical", 4),
    Sketcher.Constraint("Horizontal", 5),
    Sketcher.Constraint("Equal", 5, 2),
    Sketcher.Constraint("DistanceX", 3, 2, 3, 1, 600.0),
    Sketcher.Constraint("DistanceX", 1, 1, 1, 2, 625.4),
    Sketcher.Constraint("DistanceY", 0, 2, 0, 1, 100.8),
    Sketcher.Constraint("DistanceY", -1, 1, 4, 2, 840.0),
    Sketcher.Constraint("DistanceX", -1, 1, 0, 2, 1970.1),
])
pad11 = body.newObject("PartDesign::Pad", "Pad010")
pad11.Profile = sketch20
pad11.Length = 169.5
pad11.Reversed = True

sketch21 = body.newObject("Sketcher::SketchObject", "Sketch020")
sketch21.AttachmentSupport = (doc.getObject("XY_Plane"), [""])
sketch21.MapMode = "FlatFace"
sketch21.AttachmentOffset = App.Placement(V(0, 0, 1019.5), App.Rotation())
sketch21.addGeometry([
    Part.LineSegment(V(1970.1, 831.113098, 0), V(1970.1, 840, 0)),
    Part.LineSegment(V(1970.1, 840, 0), V(1295.5, 179.5, 0)),
    Part.LineSegment(V(1295.5, 179.5, 0), V(1304.576615, 179.5, 0)),
    Part.LineSegment(V(1304.576615, 179.5, 0), V(1311.062172, 185.85, 0)),
    Part.LineSegment(V(1311.062172, 185.85, 0), V(1970.1, 831.113098, 0)),
], False)
sketch21.addConstraint([
    Sketcher.Constraint("Coincident", 0, 2, 1, 1),
    Sketcher.Constraint("Coincident", 1, 2, 2, 1),
    Sketcher.Constraint("Coincident", 2, 2, 3, 1),
    Sketcher.Constraint("Coincident", 3, 2, 4, 1),
    Sketcher.Constraint("Coincident", 4, 2, 0, 1),
    Sketcher.Constraint("Vertical", 0),
    Sketcher.Constraint("Horizontal", 2),
    Sketcher.Constraint("Parallel", 1, 3),
    Sketcher.Constraint("Parallel", 3, 4),
    Sketcher.Constraint("DistanceY", -1, 1, 0, 2, 840.0),
    Sketcher.Constraint("DistanceX", -1, 1, 0, 2, 1970.1),
    Sketcher.Constraint("DistanceX", -1, 1, 1, 2, 1295.5),
    Sketcher.Constraint("DistanceY", -1, 1, 1, 2, 179.5),
    Sketcher.Constraint("DistanceY", -1, 1, 3, 2, 185.85),
    Sketcher.Constraint("Distance", 4, 922.331461),
])
pad12 = body.newObject("PartDesign::Pad", "Pad011")
pad12.Profile = sketch21
pad12.Length = 2019.5
pad12.Reversed = True

sketch22 = body.newObject("Sketcher::SketchObject", "Sketch021")
sketch22.AttachmentSupport = (doc.getObject("XZ_Plane"), [""])
sketch22.MapMode = "FlatFace"
sketch22.AttachmentOffset = App.Placement(V(0, 0, -650), App.Rotation())
sketch22.addGeometry([
    Part.LineSegment(V(-2675, -1079.5, 0), V(-2675, 1079.5, 0)),
    Part.LineSegment(V(-2675, 1079.5, 0), V(2675, 1079.5, 0)),
    Part.LineSegment(V(2675, 1079.5, 0), V(2675, -1079.5, 0)),
    Part.LineSegment(V(2675, -1079.5, 0), V(-2675, -1079.5, 0)),
    Part.LineSegment(V(2615, 1019.5, 0), V(-2615, 1019.5, 0)),
    Part.LineSegment(V(-2615, 1019.5, 0), V(-2615, -1019.5, 0)),
    Part.LineSegment(V(-2615, -1019.5, 0), V(2615, -1019.5, 0)),
    Part.LineSegment(V(2615, -1019.5, 0), V(2615, 1019.5, 0)),
], False)
sketch22.addConstraint([
    Sketcher.Constraint("Coincident", 0, 2, 1, 1),
    Sketcher.Constraint("Coincident", 1, 2, 2, 1),
    Sketcher.Constraint("Coincident", 2, 2, 3, 1),
    Sketcher.Constraint("Coincident", 3, 2, 0, 1),
    Sketcher.Constraint("Coincident", 4, 2, 5, 1),
    Sketcher.Constraint("Coincident", 5, 2, 6, 1),
    Sketcher.Constraint("Coincident", 6, 2, 7, 1),
    Sketcher.Constraint("Coincident", 7, 2, 4, 1),
    Sketcher.Constraint("Vertical", 0),
    Sketcher.Constraint("Horizontal", 1),
    Sketcher.Constraint("Vertical", 2),
    Sketcher.Constraint("Horizontal", 3),
    Sketcher.Constraint("Horizontal", 4),
    Sketcher.Constraint("Vertical", 5),
    Sketcher.Constraint("Horizontal", 6),
    Sketcher.Constraint("Vertical", 7),
    Sketcher.Constraint("Symmetric", 0, 2, 2, 2, -1, 1),
    Sketcher.Constraint("Symmetric", 4, 2, 6, 2, -1, 1),
    Sketcher.Constraint("DistanceX", 1, 1, 1, 2, 5350.0),
    Sketcher.Constraint("DistanceX", 4, 2, 4, 1, 5230.0),
    Sketcher.Constraint("DistanceY", 0, 1, 0, 2, 2159.0),
    Sketcher.Constraint("DistanceY", 5, 2, 5, 1, 2039.0),
])
pad13 = body.newObject("PartDesign::Pad", "Pad012")
pad13.Profile = sketch22
pad13.Length = 38.1

sketch23 = body.newObject("Sketcher::SketchObject", "Sketch022")
sketch23.AttachmentSupport = (doc.getObject("YZ_Plane"), [""])
sketch23.MapMode = "FlatFace"
sketch23.AttachmentOffset = App.Placement(V(0, 0, 2615), App.Rotation())
sketch23.addGeometry([
    Part.Circle(V(901.9, 925, 0), V(0, 0, 1), 15),
    Part.Circle(V(901.9, 925, 0), V(0, 0, 1), 12.7),
], False)
sketch23.addConstraint([
    Sketcher.Constraint("Coincident", 1, 3, 0, 3),
    Sketcher.Constraint("Diameter", 0, 30.0),
    Sketcher.Constraint("Diameter", 1, 25.4),
    Sketcher.Constraint("DistanceY", -1, 1, 0, 3, 925.0),
    Sketcher.Constraint("DistanceX", -1, 1, 0, 3, 901.9),
])
pad14 = body.newObject("PartDesign::Pad", "Pad013")
pad14.Profile = sketch23
pad14.Length = 280
pad14.Reversed = True

sketch24 = body.newObject("Sketcher::SketchObject", "Sketch023")
sketch24.AttachmentSupport = (doc.getObject("YZ_Plane"), [""])
sketch24.MapMode = "FlatFace"
sketch24.AttachmentOffset = App.Placement(V(0, 0, 2335), App.Rotation())
sketch24.addGeometry([
    Part.ArcOfCircle(Part.Circle(V(901.9, 925, 0), V(0, 0, 1), 14.077592), math.radians(90), math.radians(360)),
    Part.ArcOfCircle(Part.Circle(V(901.9, 925, 0), V(0, 0, 1), 14.077592), math.radians(0), math.radians(90)),
    Part.Circle(V(901.9, 925, 0), V(0, 0, 1), 12.7),
], False)
sketch24.addGeometry(Part.LineSegment(V(925.977592, 939.077592, 0), V(925.977592, 925, 0)), True)
sketch24.addConstraint([
    Sketcher.Constraint("Tangent", 0, 1, 1, 2),
    Sketcher.Constraint("Coincident", 1, 1, 0, 2),
    Sketcher.Constraint("Vertical", 3),
    Sketcher.Constraint("Coincident", 2, 3, 0, 3),
    Sketcher.Constraint("Horizontal", 2, 3, 1, 1),
    Sketcher.Constraint("Horizontal", 0, 1, 3, 1),
    Sketcher.Constraint("Horizontal", 1, 1, 3, 2),
    Sketcher.Constraint("Vertical", 2, 3, 0, 1),
    Sketcher.Constraint("Diameter", 2, 25.4),
    Sketcher.Constraint("DistanceY", -1, 1, 0, 3, 925.0),
    Sketcher.Constraint("DistanceX", 1, 1, 3, 1, 10.0),
    Sketcher.Constraint("DistanceX", -1, 1, 0, 3, 901.9),
    Sketcher.Constraint("Radius", 0, 14.077592),
])
revolution = body.newObject("PartDesign::Revolution", "Revolution")
revolution.Profile = sketch24
revolution.ReferenceAxis = (sketch24, ["Axis0"])
revolution.Angle = 90

sketch25 = body.newObject("Sketcher::SketchObject", "Sketch024")
sketch25.AttachmentSupport = (doc.getObject("XZ_Plane"), [""])
sketch25.MapMode = "FlatFace"
sketch25.AttachmentOffset = App.Placement(V(0, 0, -925.977592), App.Rotation())
sketch25.addGeometry([
    Part.Circle(V(2310.922408, 925, 0), V(0, 0, 1), 14.077592),
    Part.Circle(V(2310.922408, 925, 0), V(0, 0, 1), 12.7),
], False)
sketch25.addConstraint([
    Sketcher.Constraint("Coincident", 1, 3, 0, 3),
    Sketcher.Constraint("Diameter", 1, 25.4),
    Sketcher.Constraint("DistanceY", -1, 1, 0, 3, 925.0),
    Sketcher.Constraint("Diameter", 0, 28.155183),
    Sketcher.Constraint("DistanceX", -1, 1, 0, 3, 2310.922408),
])
pad15 = body.newObject("PartDesign::Pad", "Pad014")
pad15.Profile = sketch25
pad15.Length = 140
pad15.Reversed = True
doc.recompute()

datumline = body.newObject("PartDesign::Line", "DatumLine")
datumline.Placement = App.Placement(V(2605.25, 901.9, 0), App.Rotation(V(0, 0, 1), V(0, 0, 1)))
polarpattern = body.newObject("PartDesign::PolarPattern", "PolarPattern")
polarpattern.Originals = [pad14, revolution, pad15]
polarpattern.Axis = (datumline, [""])
polarpattern.Angle = 360
polarpattern.Occurrences = 2
body.Tip = polarpattern

sketch26 = body.newObject("Sketcher::SketchObject", "Sketch025")
sketch26.AttachmentSupport = (doc.getObject("XY_Plane"), [""])
sketch26.MapMode = "FlatFace"
sketch26.AttachmentOffset = App.Placement(V(0, 0, 1019.5), App.Rotation())
sketch26.addGeometry(Part.Circle(V(2145.5, 864.6, 0), V(0, 0, 1), 50), False)
sketch26.addConstraint([
    Sketcher.Constraint("Diameter", 0, 100.0),
    Sketcher.Constraint("DistanceX", -1, 1, 0, 3, 2145.5),
    Sketcher.Constraint("DistanceY", -1, 1, 0, 3, 864.6),
])
pocket10 = body.newObject("PartDesign::Pocket", "Pocket009")
pocket10.Profile = sketch26
pocket10.Length = 19.5

sketch27 = body.newObject("Sketcher::SketchObject", "Sketch026")
sketch27.AttachmentSupport = (doc.getObject("YZ_Plane"), [""])
sketch27.MapMode = "FlatFace"
sketch27.AttachmentOffset = App.Placement(V(0, 0, 2615), App.Rotation())
sketch27.addGeometry([
    Part.LineSegment(V(1179.6, 910.4, 0), V(1179.6, 939.6, 0)),
    Part.ArcOfCircle(Part.Circle(V(1174.6, 939.6, 0), V(0, 0, 1), 5), math.radians(0), math.radians(90)),
    Part.LineSegment(V(1174.6, 944.6, 0), V(825, 944.6, 0)),
    Part.ArcOfCircle(Part.Circle(V(825, 939.6, 0), V(0, 0, 1), 5), math.radians(90), math.radians(180)),
    Part.LineSegment(V(820, 939.6, 0), V(820, 910.4, 0)),
    Part.ArcOfCircle(Part.Circle(V(825, 910.4, 0), V(0, 0, 1), 5), math.radians(180), math.radians(270)),
    Part.LineSegment(V(825, 905.4, 0), V(1174.6, 905.4, 0)),
    Part.ArcOfCircle(Part.Circle(V(1174.6, 910.4, 0), V(0, 0, 1), 5), math.radians(-90), math.radians(0)),
], False)
sketch27.addConstraint([
    Sketcher.Constraint("Tangent", 0, 2, 1, 1),
    Sketcher.Constraint("Tangent", 1, 2, 2, 1),
    Sketcher.Constraint("Tangent", 2, 2, 3, 1),
    Sketcher.Constraint("Tangent", 3, 2, 4, 1),
    Sketcher.Constraint("Tangent", 4, 2, 5, 1),
    Sketcher.Constraint("Tangent", 5, 2, 6, 1),
    Sketcher.Constraint("Tangent", 6, 2, 7, 1),
    Sketcher.Constraint("Tangent", 7, 2, 0, 1),
    Sketcher.Constraint("Vertical", 0),
    Sketcher.Constraint("Horizontal", 2),
    Sketcher.Constraint("Vertical", 4),
    Sketcher.Constraint("Horizontal", 6),
    Sketcher.Constraint("Equal", 1, 3),
    Sketcher.Constraint("Equal", 3, 5),
    Sketcher.Constraint("Equal", 5, 7),
    Sketcher.Constraint("Radius", 1, 5.0),
    Sketcher.Constraint("DistanceX", 2, 2, 2, 1, 349.6),
    Sketcher.Constraint("DistanceY", 0, 1, 0, 2, 29.2),
    Sketcher.Constraint("DistanceX", -1, 1, 3, 3, 825.0),
    Sketcher.Constraint("DistanceY", -1, 1, 1, 3, 939.6),
])
pocket11 = body.newObject("PartDesign::Pocket", "Pocket010")
pocket11.Profile = sketch27
pocket11.Type = "TwoLengths"
pocket11.Length = 50
pocket11.Length2 = 60
pocket11.Reversed = True

doc.recompute()
